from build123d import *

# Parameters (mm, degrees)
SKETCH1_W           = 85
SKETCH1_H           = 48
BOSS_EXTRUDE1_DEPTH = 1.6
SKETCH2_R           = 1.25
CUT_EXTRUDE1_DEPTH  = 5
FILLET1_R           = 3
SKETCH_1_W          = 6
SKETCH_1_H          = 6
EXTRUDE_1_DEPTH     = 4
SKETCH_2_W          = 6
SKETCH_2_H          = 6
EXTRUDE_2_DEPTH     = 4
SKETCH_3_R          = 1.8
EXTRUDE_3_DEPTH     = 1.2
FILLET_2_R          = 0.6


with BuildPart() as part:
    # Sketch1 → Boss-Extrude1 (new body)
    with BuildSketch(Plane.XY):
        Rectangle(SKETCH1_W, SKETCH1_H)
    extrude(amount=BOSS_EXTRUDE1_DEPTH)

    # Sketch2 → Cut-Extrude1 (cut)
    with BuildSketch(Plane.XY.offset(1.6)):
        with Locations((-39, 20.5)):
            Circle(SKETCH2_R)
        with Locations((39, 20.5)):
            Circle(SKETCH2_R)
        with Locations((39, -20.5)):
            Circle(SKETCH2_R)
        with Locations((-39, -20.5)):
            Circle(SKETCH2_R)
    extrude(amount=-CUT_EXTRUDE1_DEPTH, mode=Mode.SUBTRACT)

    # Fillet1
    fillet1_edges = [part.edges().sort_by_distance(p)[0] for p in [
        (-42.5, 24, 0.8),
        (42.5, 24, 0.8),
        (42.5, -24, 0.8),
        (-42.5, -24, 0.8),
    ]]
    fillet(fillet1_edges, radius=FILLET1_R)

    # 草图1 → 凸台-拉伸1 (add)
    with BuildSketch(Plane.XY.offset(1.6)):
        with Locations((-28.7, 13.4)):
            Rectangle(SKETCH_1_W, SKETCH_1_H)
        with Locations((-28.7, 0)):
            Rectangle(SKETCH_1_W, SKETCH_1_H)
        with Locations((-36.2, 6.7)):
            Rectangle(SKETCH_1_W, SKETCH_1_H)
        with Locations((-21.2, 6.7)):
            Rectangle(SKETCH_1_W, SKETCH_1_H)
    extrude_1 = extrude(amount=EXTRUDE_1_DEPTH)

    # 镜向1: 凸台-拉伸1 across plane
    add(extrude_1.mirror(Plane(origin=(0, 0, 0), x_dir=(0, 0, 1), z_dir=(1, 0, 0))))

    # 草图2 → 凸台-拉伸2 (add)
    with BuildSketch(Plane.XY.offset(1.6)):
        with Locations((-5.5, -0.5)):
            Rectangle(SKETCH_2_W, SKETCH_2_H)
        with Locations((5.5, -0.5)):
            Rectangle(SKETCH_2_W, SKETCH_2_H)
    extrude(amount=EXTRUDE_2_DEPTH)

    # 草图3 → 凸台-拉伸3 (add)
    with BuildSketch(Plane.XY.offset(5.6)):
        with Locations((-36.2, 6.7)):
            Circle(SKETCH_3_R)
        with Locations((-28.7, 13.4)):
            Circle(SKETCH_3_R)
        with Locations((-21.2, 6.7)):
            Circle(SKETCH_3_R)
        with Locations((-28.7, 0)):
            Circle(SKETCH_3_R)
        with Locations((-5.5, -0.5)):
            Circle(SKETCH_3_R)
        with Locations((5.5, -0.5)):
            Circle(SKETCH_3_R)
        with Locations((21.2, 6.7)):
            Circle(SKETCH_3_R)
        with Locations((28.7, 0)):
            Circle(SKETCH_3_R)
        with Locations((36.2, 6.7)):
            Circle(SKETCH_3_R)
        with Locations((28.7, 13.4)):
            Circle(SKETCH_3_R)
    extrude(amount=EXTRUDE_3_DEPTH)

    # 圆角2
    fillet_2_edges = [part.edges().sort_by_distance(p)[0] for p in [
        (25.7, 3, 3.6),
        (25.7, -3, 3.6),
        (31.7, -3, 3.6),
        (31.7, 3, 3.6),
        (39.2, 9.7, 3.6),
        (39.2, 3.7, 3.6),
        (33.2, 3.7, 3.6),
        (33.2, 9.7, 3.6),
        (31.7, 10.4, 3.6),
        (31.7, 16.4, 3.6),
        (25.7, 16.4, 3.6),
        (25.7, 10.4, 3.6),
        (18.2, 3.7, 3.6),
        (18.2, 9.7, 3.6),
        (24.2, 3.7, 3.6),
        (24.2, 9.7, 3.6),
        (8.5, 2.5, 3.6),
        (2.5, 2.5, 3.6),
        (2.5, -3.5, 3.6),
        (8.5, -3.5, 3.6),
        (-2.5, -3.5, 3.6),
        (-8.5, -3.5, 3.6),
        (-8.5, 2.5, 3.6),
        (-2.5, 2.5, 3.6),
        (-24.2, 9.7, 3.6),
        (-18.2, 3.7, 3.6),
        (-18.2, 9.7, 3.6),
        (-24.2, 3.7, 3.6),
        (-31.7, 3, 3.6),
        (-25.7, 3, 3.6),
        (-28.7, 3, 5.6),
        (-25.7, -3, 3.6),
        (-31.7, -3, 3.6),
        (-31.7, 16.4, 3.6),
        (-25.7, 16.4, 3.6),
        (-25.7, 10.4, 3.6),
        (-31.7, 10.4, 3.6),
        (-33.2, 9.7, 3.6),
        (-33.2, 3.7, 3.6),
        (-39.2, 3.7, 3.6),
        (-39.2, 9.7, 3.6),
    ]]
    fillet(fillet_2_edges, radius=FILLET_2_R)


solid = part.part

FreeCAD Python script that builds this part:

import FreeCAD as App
import Part
import Sketcher

V = App.Vector


def edges_at(feature, points):
    """Names of the edges that pass closest to the given points."""
    edges = feature.Shape.Edges
    near = lambda p: min(range(len(edges)), key=lambda i: edges[i].distToShape(Part.Vertex(*p))[0])
    return sorted({f"Edge{near(p) + 1}" for p in points})

doc = App.newDocument("Part")
body = doc.addObject("PartDesign::Body", "Body")

# Sketch on XY plane
sketch1 = body.newObject("Sketcher::SketchObject", "Sketch")
sketch1.AttachmentSupport = (doc.getObject("XY_Plane"), [""])
sketch1.MapMode = "FlatFace"
sketch1.addGeometry([
    Part.LineSegment(V(-42, 24, 0), V(-42, -24, 0)),
    Part.LineSegment(V(-42, -24, 0), V(42, -24, 0)),
    Part.LineSegment(V(42, -24, 0), V(42, 24, 0)),
    Part.LineSegment(V(42, 24, 0), V(-42, 24, 0)),
], False)
sketch1.addConstraint([
    Sketcher.Constraint("Coincident", 0, 2, 1, 1),
    Sketcher.Constraint("Coincident", 1, 2, 2, 1),
    Sketcher.Constraint("Coincident", 2, 2, 3, 1),
    Sketcher.Constraint("Coincident", 3, 2, 0, 1),
    Sketcher.Constraint("Vertical", 0),
    Sketcher.Constraint("Horizontal", 1),
    Sketcher.Constraint("Vertical", 2),
    Sketcher.Constraint("Horizontal", 3),
    Sketcher.Constraint("Symmetric", 0, 2, 2, 2, -1, 1),
    Sketcher.Constraint("DistanceX", 1, 1, 1, 2, 85.0),
    Sketcher.Constraint("DistanceY", 0, 2, 0, 1, 48.0),
])
pad1 = body.newObject("PartDesign::Pad", "Pad")
pad1.Profile = sketch1
pad1.Length = 1.6

# Sketch on XY plane
sketch2 = body.newObject("Sketcher::SketchObject", "Sketch001")
sketch2.AttachmentSupport = (doc.getObject("XY_Plane"), [""])
sketch2.MapMode = "FlatFace"
sketch2.AttachmentOffset = App.Placement(V(0, 0, 1.6), App.Rotation())
sketch2.addGeometry([
    Part.Circle(V(-39, 20.5, 0), V(0, 0, 1), 1.2),
    Part.Circle(V(39, 20.5, 0), V(0, 0, 1), 1.2),
    Part.Circle(V(39, -20.5, 0), V(0, 0, 1), 1.2),
    Part.Circle(V(-39, -20.5, 0), V(0, 0, 1), 1.2),
], False)
sketch2.addConstraint([
    Sketcher.Constraint("Equal", 0, 1),
    Sketcher.Constraint("Equal", 1, 2),
    Sketcher.Constraint("Equal", 2, 3),
    Sketcher.Constraint("Symmetric", 0, 3, 2, 3, -1, 1),
    Sketcher.Constraint("Symmetric", 1, 3, 3, 3, -1, 1),
    Sketcher.Constraint("Symmetric", 0, 3, 1, 3, -2),
    Sketcher.Constraint("Diameter", 0, 2.5),
    Sketcher.Constraint("DistanceX", 0, 3, -1, 1, 39.0),
    Sketcher.Constraint("DistanceY", 2, 3, 1, 3, 41.0),
])
pocket1 = body.newObject("PartDesign::Pocket", "Pocket")
pocket1.Profile = sketch2
pocket1.Length = 5
doc.recompute()

fillet = body.newObject("PartDesign::Fillet", "Fillet")
fillet.Base = (pocket1, edges_at(pocket1, [
    (-42.5, 24, 0.8),
    (42.5, 24, 0.8),
    (42.5, -24, 0.8),
    (-42.5, -24, 0.8),
]))
fillet.Radius = 3

# Sketch on XY plane
sketch3 = body.newObject("Sketcher::SketchObject", "Sketch002")
sketch3.AttachmentSupport = (doc.getObject("XY_Plane"), [""])
sketch3.MapMode = "FlatFace"
sketch3.AttachmentOffset = App.Placement(V(0, 0, 1.6), App.Rotation())
sketch3.addGeometry([
    Part.LineSegment(V(-32, 16, 0), V(-32, 10, 0)),  # 0
    Part.LineSegment(V(-32, 10, 0), V(-26, 10, 0)),  # 1
    Part.LineSegment(V(-26, 10, 0), V(-26, 16, 0)),  # 2
    Part.LineSegment(V(-26, 16, 0), V(-32, 16, 0)),  # 3
    Part.LineSegment(V(-32, 3, 0), V(-32, -3, 0)),  # 4
    Part.LineSegment(V(-32, -3, 0), V(-26, -3, 0)),  # 5
    Part.LineSegment(V(-26, -3, 0), V(-26, 3, 0)),  # 6
    Part.LineSegment(V(-26, 3, 0), V(-32, 3, 0)),  # 7
    Part.LineSegment(V(-39, 10, 0), V(-39, 4, 0)),  # 8
    Part.LineSegment(V(-39, 4, 0), V(-33, 4, 0)),  # 9
    Part.LineSegment(V(-33, 4, 0), V(-33, 10, 0)),  # 10
    Part.LineSegment(V(-33, 10, 0), V(-39, 10, 0)),  # 11
    Part.LineSegment(V(-24, 10, 0), V(-24, 4, 0)),  # 12
    Part.LineSegment(V(-24, 4, 0), V(-18, 4, 0)),  # 13
    Part.LineSegment(V(-18, 4, 0), V(-18, 10, 0)),  # 14
    Part.LineSegment(V(-18, 10, 0), V(-24, 10, 0)),  # 15
], False)
sketch3.addConstraint([
    Sketcher.Constraint("Coincident", 0, 2, 1, 1),
    Sketcher.Constraint("Coincident", 1, 2, 2, 1),
    Sketcher.Constraint("Coincident", 2, 2, 3, 1),
    Sketcher.Constraint("Coincident", 3, 2, 0, 1),
    Sketcher.Constraint("Coincident", 4, 2, 5, 1),
    Sketcher.Constraint("Coincident", 5, 2, 6, 1),
    Sketcher.Constraint("Coincident", 6, 2, 7, 1),
    Sketcher.Constraint("Coincident", 7, 2, 4, 1),
    Sketcher.Constraint("Coincident", 8, 2, 9, 1),
    Sketcher.Constraint("Coincident", 9, 2, 10, 1),
    Sketcher.Constraint("Coincident", 10, 2, 11, 1),
    Sketcher.Constraint("Coincident", 11, 2, 8, 1),
    Sketcher.Constraint("Coincident", 12, 2, 13, 1),
    Sketcher.Constraint("Coincident", 13, 2, 14, 1),
    Sketcher.Constraint("Coincident", 14, 2, 15, 1),
    Sketcher.Constraint("Coincident", 15, 2, 12, 1),
    Sketcher.Constraint("Vertical", 0),
    Sketcher.Constraint("Horizontal", 1),
    Sketcher.Constraint("Vertical", 2),
    Sketcher.Constraint("Horizontal", 3),
    Sketcher.Constraint("Vertical", 4),
    Sketcher.Constraint("Horizontal", 5),
    Sketcher.Constraint("Vertical", 6),
    Sketcher.Constraint("Horizontal", 7),
    Sketcher.Constraint("Vertical", 8),
    Sketcher.Constraint("Horizontal", 9),
    Sketcher.Constraint("Vertical", 10),
    Sketcher.Constraint("Horizontal", 11),
    Sketcher.Constraint("Vertical", 12),
    Sketcher.Constraint("Horizontal", 13),
    Sketcher.Constraint("Vertical", 14),
    Sketcher.Constraint("Horizontal", 15),
    Sketcher.Constraint("Horizontal", 9, 2, 12, 2),
    Sketcher.Constraint("Horizontal", 11, 2, 14, 2),
    Sketcher.Constraint("Vertical", 3, 2, 4, 2),
    Sketcher.Constraint("Vertical", 2, 2, 5, 2),
    Sketcher.Constraint("Equal", 7, 9),
    Sketcher.Constraint("Equal", 11, 13),
    Sketcher.Constraint("Equal", 15, 0),
    Sketcher.Constraint("Equal", 2, 4),
    Sketcher.Constraint("Equal", 6, 8),
    Sketcher.Constraint("DistanceX", 1, 1, 1, 2, 6.0),
    Sketcher.Constraint("DistanceY", 4, 2, -1, 1, 3.0),
    Sketcher.Constraint("DistanceX", 9, 2, 12, 2, 9.0),
    Sketcher.Constraint("DistanceX", 0, 2, -1, 1, 31.7),
    Sketcher.Constraint("DistanceY", -1, 1, 0, 2, 10.4),
    Sketcher.Constraint("DistanceX", 8, 2, -1, 1, 39.2),
    Sketcher.Constraint("DistanceY", -1, 1, 8, 2, 3.7),
])
pad2 = body.newObject("PartDesign::Pad", "Pad001")
pad2.Profile = sketch3
pad2.Length = 4
doc.recompute()

mirrored = body.newObject("PartDesign::Mirrored", "Mirrored")
mirrored.Originals = [pad2]
mirrored.MirrorPlane = (doc.getObject("YZ_Plane"), [""])
body.Tip = mirrored

# Sketch on XY plane
sketch4 = body.newObject("Sketcher::SketchObject", "Sketch003")
sketch4.AttachmentSupport = (doc.getObject("XY_Plane"), [""])
sketch4.MapMode = "FlatFace"
sketch4.AttachmentOffset = App.Placement(V(0, 0, 1.6), App.Rotation())
sketch4.addGeometry([
    Part.LineSegment(V(-8, 2, 0), V(-8, -4, 0)),  # 0
    Part.LineSegment(V(-8, -4, 0), V(-2, -4, 0)),  # 1
    Part.LineSegment(V(-2, -4, 0), V(-2, 2, 0)),  # 2
    Part.LineSegment(V(-2, 2, 0), V(-8, 2, 0)),  # 3
    Part.LineSegment(V(2, 2, 0), V(2, -4, 0)),  # 4
    Part.LineSegment(V(2, -4, 0), V(8, -4, 0)),  # 5
    Part.LineSegment(V(8, -4, 0), V(8, 2, 0)),  # 6
    Part.LineSegment(V(8, 2, 0), V(2, 2, 0)),  # 7
], False)
sketch4.addConstraint([
    Sketcher.Constraint("Coincident", 0, 2, 1, 1),
    Sketcher.Constraint("Coincident", 1, 2, 2, 1),
    Sketcher.Constraint("Coincident", 2, 2, 3, 1),
    Sketcher.Constraint("Coincident", 3, 2, 0, 1),
    Sketcher.Constraint("Coincident", 4, 2, 5, 1),
    Sketcher.Constraint("Coincident", 5, 2, 6, 1),
    Sketcher.Constraint("Coincident", 6, 2, 7, 1),
    Sketcher.Constraint("Coincident", 7, 2, 4, 1),
    Sketcher.Constraint("Vertical", 0),
    Sketcher.Constraint("Horizontal", 1),
    Sketcher.Constraint("Vertical", 2),
    Sketcher.Constraint("Horizontal", 3),
    Sketcher.Constraint("Vertical", 4),
    Sketcher.Constraint("Horizontal", 5),
    Sketcher.Constraint("Vertical", 6),
    Sketcher.Constraint("Horizontal", 7),
    Sketcher.Constraint("Symmetric", 1, 2, 4, 2, -2),
    Sketcher.Constraint("Symmetric", 3, 2, 6, 2, -2),
    Sketcher.Constraint("Equal", 7, 0),
    Sketcher.Constraint("DistanceX", 1, 1, 1, 2, 6.0),
    Sketcher.Constraint("DistanceX", 1, 2, 4, 2, 5.0),
    Sketcher.Constraint("DistanceY", 0, 2, -1, 1, 3.5),
])
pad3 = body.newObject("PartDesign::Pad", "Pad002")
pad3.Profile = sketch4
pad3.Length = 4

# Sketch on XY plane
sketch5 = body.newObject("Sketcher::SketchObject", "Sketch004")
sketch5.AttachmentSupport = (doc.getObject("XY_Plane"), [""])
sketch5.MapMode = "FlatFace"
sketch5.AttachmentOffset = App.Placement(V(0, 0, 5.6), App.Rotation())
sketch5.addGeometry([
    Part.Circle(V(-36.2, 6.7, 0), V(0, 0, 1), 1.8),  # 0
    Part.Circle(V(-28.7, 13.4, 0), V(0, 0, 1), 1.8),  # 1
    Part.Circle(V(-21.2, 6.7, 0), V(0, 0, 1), 1.8),  # 2
    Part.Circle(V(-28.7, 0, 0), V(0, 0, 1), 1.8),  # 3
    Part.Circle(V(-5.5, -0.5, 0), V(0, 0, 1), 1.8),  # 4
    Part.Circle(V(5.5, -0.5, 0), V(0, 0, 1), 1.8),  # 5
    Part.Circle(V(21.2, 6.7, 0), V(0, 0, 1), 1.8),  # 6
    Part.Circle(V(28.7, 0, 0), V(0, 0, 1), 1.8),  # 7
    Part.Circle(V(36.2, 6.7, 0), V(0, 0, 1), 1.8),  # 8
    Part.Circle(V(28.7, 13.4, 0), V(0, 0, 1), 1.8),  # 9
], False)
sketch5.addConstraint([
    Sketcher.Constraint("Equal", 0, 1),
    Sketcher.Constraint("Equal", 1, 2),
    Sketcher.Constraint("Equal", 2, 3),
    Sketcher.Constraint("Equal", 3, 4),
    Sketcher.Constraint("Equal", 4, 5),
    Sketcher.Constraint("Equal", 5, 6),
    Sketcher.Constraint("Equal", 6, 7),
    Sketcher.Constraint("Equal", 7, 8),
    Sketcher.Constraint("Equal", 8, 9),
    Sketcher.Constraint("Symmetric", 3, 3, 7, 3, -1, 1),
    Sketcher.Constraint("Symmetric", 4, 3, 5, 3, -2),
    Sketcher.Constraint("Symmetric", 2, 3, 6, 3, -2),
    Sketcher.Constraint("Symmetric", 0, 3, 8, 3, -2),
    Sketcher.Constraint("Symmetric", 1, 3, 9, 3, -2),
    Sketcher.Constraint("PointOnObject", 3, 3, -1),
    Sketcher.Constraint("Horizontal", 0, 3, 2, 3),
    Sketcher.Constraint("Vertical", 1, 3, 3, 3),
    Sketcher.Constraint("Diameter", 0, 3.6),
    Sketcher.Constraint("DistanceX", 0, 3, 2, 3, 15.0),
    Sketcher.Constraint("DistanceX", 4, 3, 5, 3, 11.0),
    Sketcher.Constraint("DistanceX", 0, 3, -1, 1, 36.2),
    Sketcher.Constraint("DistanceY", -1, 1, 0, 3, 6.7),
    Sketcher.Constraint("DistanceX", 1, 3, -1, 1, 28.7),
    Sketcher.Constraint("DistanceY", -1, 1, 1, 3, 13.4),
    Sketcher.Constraint("DistanceY", 4, 3, -1, 1, 0.5),
])
pad4 = body.newObject("PartDesign::Pad", "Pad003")
pad4.Profile = sketch5
pad4.Length = 1.2
doc.recompute()

fillet2 = body.newObject("PartDesign::Fillet", "Fillet001")
fillet2.Base = (pad4, edges_at(pad4, [
    (25.7, 3, 3.6),
    (25.7, -3, 3.6),
    (31.7, -3, 3.6),
    (31.7, 3, 3.6),
    (39.2, 9.7, 3.6),
    (39.2, 3.7, 3.6),
    (33.2, 3.7, 3.6),
    (33.2, 9.7, 3.6),
    (31.7, 10.4, 3.6),
    (31.7, 16.4, 3.6),
    (25.7, 16.4, 3.6),
    (25.7, 10.4, 3.6),
    (18.2, 3.7, 3.6),
    (18.2, 9.7, 3.6),
    (24.2, 3.7, 3.6),
    (24.2, 9.7, 3.6),
    (8.5, 2.5, 3.6),
    (2.5, 2.5, 3.6),
    (2.5, -3.5, 3.6),
    (8.5, -3.5, 3.6),
    (-2.5, -3.5, 3.6),
    (-8.5, -3.5, 3.6),
    (-8.5, 2.5, 3.6),
    (-2.5, 2.5, 3.6),
    (-24.2, 9.7, 3.6),
    (-18.2, 3.7, 3.6),
    (-18.2, 9.7, 3.6),
    (-24.2, 3.7, 3.6),
    (-31.7, 3, 3.6),
    (-25.7, 3, 3.6),
    (-28.7, 3, 5.6),
    (-25.7, -3, 3.6),
    (-31.7, -3, 3.6),
    (-31.7, 16.4, 3.6),
    (-25.7, 16.4, 3.6),
    (-25.7, 10.4, 3.6),
    (-31.7, 10.4, 3.6),
    (-33.2, 9.7, 3.6),
    (-33.2, 3.7, 3.6),
    (-39.2, 3.7, 3.6),
    (-39.2, 9.7, 3.6),
]))
fillet2.Radius = 0.6

doc.recompute()
